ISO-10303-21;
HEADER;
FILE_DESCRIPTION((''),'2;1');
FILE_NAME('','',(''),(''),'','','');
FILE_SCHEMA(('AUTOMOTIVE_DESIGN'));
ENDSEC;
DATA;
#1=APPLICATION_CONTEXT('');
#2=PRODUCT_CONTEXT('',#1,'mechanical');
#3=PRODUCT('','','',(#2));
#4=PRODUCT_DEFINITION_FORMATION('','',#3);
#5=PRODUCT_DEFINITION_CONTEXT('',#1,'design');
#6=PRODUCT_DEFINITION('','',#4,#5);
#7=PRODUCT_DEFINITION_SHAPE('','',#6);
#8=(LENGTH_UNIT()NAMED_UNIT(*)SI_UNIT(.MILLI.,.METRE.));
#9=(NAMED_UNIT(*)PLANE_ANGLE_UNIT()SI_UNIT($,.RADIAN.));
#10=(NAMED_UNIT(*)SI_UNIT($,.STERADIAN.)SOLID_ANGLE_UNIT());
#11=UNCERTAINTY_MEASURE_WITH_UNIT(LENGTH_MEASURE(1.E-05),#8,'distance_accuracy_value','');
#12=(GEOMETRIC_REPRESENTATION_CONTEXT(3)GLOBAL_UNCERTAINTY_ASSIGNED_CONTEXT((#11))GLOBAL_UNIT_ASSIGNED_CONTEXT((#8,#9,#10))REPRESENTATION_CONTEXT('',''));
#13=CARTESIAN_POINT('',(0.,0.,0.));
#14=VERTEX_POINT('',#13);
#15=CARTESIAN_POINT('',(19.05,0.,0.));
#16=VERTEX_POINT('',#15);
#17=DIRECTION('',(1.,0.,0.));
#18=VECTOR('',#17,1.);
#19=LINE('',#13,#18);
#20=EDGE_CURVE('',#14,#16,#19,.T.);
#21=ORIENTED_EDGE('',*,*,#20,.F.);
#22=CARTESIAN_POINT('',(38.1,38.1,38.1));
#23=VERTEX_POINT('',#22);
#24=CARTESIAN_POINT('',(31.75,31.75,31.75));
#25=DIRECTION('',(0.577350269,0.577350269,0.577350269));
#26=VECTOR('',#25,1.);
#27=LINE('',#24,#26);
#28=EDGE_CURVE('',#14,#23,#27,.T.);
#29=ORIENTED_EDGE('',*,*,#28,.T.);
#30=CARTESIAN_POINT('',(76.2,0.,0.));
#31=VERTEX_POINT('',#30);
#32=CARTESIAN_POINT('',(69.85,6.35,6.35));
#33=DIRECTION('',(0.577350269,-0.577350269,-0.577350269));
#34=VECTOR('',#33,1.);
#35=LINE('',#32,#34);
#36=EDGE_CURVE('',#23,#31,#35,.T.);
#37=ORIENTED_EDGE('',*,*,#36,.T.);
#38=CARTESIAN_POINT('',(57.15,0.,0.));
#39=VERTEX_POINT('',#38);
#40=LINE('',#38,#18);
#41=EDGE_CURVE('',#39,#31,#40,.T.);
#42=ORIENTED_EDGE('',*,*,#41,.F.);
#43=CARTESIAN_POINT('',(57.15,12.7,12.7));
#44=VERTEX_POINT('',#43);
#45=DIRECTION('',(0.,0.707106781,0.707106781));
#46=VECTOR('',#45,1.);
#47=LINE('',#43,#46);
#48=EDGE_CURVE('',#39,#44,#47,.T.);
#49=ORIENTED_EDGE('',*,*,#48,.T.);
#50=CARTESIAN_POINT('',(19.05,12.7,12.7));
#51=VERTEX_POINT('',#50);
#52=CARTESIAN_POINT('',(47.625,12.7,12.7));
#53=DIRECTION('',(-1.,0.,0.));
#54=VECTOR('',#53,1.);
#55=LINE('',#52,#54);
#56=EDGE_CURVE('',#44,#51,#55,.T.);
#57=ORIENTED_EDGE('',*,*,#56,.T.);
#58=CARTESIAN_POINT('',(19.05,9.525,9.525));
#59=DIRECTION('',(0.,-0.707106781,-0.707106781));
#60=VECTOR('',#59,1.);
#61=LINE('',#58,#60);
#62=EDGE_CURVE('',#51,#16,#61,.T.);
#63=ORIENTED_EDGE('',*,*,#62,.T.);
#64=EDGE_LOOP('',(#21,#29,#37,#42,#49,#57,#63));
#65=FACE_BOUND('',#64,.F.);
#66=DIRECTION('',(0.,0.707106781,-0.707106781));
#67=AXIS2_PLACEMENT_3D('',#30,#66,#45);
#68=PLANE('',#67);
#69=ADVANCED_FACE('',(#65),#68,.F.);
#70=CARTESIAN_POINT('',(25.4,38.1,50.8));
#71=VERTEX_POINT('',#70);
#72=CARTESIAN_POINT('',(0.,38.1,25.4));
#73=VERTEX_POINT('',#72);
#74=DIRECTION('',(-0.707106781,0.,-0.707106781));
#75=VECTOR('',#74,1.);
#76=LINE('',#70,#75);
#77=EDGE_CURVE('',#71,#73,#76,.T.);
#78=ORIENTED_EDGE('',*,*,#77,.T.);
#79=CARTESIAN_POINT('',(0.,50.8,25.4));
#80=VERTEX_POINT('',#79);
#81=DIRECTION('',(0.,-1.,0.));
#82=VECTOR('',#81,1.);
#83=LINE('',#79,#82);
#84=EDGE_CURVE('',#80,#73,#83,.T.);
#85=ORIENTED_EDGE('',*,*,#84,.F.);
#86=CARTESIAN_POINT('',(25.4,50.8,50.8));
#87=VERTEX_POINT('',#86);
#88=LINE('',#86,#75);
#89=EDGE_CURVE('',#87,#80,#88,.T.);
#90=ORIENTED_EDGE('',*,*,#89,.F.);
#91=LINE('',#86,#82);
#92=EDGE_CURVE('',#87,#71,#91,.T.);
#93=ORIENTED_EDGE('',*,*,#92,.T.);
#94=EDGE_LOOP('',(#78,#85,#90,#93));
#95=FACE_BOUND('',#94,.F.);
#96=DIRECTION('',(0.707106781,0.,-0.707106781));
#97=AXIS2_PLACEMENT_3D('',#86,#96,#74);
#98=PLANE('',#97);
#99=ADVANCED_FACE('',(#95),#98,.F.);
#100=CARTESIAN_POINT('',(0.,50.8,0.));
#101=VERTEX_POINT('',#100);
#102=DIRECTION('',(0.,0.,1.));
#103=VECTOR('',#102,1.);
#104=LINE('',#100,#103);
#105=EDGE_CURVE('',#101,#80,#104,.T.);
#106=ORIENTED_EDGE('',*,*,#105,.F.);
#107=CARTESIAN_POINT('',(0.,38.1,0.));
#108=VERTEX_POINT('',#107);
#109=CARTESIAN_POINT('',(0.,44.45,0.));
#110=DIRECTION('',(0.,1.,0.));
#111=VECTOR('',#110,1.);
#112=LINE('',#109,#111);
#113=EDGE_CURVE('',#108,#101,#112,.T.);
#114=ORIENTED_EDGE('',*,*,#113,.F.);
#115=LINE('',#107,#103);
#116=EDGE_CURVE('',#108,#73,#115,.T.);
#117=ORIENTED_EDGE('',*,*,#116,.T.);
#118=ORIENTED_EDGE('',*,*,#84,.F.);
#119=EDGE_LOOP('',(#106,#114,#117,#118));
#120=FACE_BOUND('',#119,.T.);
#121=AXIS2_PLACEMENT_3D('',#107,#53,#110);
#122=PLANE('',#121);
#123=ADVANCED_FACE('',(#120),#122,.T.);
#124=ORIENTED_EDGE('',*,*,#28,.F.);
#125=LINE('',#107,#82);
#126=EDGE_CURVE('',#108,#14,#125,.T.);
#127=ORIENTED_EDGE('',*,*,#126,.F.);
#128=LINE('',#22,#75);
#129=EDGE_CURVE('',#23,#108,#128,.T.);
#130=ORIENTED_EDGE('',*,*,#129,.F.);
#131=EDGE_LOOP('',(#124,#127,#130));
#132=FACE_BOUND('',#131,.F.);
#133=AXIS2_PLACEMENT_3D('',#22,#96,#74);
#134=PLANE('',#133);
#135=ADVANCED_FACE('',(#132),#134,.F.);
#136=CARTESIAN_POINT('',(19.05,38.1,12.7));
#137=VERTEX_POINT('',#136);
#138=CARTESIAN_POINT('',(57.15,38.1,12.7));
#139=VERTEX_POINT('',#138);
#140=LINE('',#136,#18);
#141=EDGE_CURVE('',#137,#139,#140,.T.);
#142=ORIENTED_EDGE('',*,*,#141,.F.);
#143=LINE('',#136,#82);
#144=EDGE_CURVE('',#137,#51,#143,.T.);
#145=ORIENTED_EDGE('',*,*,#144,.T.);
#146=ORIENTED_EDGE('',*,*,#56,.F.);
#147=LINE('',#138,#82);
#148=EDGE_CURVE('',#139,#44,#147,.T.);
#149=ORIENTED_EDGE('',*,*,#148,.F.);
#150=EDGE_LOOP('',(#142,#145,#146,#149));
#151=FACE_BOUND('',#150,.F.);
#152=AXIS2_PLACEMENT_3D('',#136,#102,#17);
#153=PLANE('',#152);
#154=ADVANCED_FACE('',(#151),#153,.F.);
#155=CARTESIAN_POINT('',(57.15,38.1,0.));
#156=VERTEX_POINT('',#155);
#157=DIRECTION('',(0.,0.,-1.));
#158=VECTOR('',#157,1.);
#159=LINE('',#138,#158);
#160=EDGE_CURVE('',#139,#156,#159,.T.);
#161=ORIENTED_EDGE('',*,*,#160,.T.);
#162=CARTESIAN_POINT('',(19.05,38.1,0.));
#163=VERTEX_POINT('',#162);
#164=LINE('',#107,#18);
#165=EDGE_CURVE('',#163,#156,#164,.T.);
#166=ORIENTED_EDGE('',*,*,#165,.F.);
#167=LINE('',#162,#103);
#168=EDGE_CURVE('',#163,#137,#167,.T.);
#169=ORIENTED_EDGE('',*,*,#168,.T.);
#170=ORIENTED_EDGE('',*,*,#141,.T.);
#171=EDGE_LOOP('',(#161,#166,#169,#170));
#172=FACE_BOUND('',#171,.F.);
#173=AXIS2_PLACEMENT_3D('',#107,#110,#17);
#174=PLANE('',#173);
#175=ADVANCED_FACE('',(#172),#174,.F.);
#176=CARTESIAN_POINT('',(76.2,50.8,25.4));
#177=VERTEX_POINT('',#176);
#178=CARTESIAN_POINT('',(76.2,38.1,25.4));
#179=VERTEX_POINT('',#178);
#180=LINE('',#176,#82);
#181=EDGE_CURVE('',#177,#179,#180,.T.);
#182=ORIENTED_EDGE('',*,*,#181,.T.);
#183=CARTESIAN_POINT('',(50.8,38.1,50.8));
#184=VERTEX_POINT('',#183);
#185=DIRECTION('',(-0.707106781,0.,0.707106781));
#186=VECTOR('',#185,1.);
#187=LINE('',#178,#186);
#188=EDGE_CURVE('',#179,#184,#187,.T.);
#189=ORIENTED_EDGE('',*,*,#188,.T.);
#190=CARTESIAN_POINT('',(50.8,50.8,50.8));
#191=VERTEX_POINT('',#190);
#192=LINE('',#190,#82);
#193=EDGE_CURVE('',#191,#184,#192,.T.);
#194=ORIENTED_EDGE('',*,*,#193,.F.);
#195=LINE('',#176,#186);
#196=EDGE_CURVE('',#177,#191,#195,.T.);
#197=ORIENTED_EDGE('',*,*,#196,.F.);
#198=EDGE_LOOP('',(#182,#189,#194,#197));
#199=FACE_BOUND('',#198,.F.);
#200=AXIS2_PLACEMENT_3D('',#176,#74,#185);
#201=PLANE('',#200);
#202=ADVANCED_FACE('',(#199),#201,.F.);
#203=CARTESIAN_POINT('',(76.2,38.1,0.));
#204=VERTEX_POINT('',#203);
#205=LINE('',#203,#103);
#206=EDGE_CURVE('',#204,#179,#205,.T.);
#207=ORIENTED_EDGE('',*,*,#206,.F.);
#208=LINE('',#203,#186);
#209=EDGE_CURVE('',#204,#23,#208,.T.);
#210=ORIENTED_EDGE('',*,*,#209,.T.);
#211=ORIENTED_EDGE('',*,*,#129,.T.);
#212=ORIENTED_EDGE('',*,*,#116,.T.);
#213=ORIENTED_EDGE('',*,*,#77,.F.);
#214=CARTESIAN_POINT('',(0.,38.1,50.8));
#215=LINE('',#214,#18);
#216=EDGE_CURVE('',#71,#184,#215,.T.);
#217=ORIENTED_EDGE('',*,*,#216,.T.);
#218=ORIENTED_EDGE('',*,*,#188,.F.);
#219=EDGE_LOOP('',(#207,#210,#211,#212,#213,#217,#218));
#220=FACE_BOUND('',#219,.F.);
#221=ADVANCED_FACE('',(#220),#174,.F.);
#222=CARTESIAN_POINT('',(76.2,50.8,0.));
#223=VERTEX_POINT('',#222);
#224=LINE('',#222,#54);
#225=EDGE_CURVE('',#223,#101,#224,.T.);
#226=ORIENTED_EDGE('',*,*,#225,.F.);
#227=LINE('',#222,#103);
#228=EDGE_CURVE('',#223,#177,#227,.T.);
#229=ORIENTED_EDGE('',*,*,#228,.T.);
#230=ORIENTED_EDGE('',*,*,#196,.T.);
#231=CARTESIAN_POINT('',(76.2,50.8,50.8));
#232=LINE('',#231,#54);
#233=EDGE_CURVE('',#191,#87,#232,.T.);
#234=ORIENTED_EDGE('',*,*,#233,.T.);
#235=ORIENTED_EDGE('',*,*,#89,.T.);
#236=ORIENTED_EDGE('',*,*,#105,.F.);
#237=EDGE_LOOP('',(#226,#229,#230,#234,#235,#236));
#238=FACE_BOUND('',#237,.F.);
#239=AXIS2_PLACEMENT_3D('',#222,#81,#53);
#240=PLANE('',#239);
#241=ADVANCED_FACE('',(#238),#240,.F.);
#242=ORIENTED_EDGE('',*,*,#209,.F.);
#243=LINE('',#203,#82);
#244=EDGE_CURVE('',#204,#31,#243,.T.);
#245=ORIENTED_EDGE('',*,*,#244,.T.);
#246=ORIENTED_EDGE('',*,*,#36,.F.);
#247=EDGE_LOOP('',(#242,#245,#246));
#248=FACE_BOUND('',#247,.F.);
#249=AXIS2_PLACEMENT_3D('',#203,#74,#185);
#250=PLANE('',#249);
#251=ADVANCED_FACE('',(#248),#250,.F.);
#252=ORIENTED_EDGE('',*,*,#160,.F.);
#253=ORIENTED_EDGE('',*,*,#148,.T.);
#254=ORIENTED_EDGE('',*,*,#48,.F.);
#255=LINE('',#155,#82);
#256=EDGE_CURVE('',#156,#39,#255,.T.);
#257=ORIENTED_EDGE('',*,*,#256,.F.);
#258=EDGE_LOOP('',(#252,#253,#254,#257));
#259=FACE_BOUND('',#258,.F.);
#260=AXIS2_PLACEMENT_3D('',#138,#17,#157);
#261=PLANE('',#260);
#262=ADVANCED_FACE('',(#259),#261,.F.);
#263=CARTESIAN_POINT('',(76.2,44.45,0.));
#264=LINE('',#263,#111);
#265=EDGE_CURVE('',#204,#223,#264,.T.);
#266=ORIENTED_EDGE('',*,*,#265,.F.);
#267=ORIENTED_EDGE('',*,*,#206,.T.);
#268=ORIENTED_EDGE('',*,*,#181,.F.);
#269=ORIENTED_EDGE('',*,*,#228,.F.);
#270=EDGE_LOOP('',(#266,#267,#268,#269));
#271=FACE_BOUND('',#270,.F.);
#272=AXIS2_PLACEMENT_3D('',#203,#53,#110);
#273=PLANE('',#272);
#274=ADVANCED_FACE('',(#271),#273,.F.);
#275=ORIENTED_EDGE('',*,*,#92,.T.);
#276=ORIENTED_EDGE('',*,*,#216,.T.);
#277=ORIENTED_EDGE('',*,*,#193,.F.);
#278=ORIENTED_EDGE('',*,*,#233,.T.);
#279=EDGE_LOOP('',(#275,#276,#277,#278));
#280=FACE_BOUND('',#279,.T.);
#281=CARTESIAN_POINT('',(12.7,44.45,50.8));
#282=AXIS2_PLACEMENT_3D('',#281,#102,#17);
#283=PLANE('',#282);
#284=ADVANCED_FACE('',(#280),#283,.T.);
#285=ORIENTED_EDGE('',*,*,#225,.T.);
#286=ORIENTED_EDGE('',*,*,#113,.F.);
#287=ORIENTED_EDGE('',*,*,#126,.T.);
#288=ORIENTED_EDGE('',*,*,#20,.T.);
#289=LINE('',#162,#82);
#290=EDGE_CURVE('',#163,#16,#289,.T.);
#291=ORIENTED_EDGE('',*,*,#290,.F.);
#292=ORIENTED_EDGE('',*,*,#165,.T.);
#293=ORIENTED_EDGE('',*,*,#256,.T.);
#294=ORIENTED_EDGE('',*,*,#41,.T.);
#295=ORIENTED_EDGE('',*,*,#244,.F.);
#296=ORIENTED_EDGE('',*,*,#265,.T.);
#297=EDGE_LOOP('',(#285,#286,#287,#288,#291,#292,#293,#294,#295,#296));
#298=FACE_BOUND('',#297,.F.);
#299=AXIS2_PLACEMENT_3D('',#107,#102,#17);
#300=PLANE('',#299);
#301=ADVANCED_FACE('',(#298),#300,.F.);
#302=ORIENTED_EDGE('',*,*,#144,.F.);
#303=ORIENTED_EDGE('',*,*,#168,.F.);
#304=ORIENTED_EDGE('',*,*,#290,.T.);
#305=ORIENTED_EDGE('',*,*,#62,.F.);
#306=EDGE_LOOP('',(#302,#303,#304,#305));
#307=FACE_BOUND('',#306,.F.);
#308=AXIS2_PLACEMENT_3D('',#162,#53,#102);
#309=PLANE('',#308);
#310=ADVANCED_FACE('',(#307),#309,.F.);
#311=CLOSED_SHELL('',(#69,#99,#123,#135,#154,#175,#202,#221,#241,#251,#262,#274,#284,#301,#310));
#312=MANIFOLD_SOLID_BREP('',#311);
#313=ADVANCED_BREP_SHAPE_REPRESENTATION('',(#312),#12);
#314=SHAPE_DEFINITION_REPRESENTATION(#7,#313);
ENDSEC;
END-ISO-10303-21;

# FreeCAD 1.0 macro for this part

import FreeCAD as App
import Part
import Sketcher

V = App.Vector
Q = App.Units.Quantity


def add_polygon(sketch, points):
    """Adds a closed chain of lines whose ends are joined by coincident constraints."""
    first, n = sketch.GeometryCount, len(points)
    for a, b in zip(points, points[1:] + points[:1]):
        sketch.addGeometry(Part.LineSegment(App.Vector(*a, 0), App.Vector(*b, 0)), False)
    for i in range(n):
        sketch.addConstraint(Sketcher.Constraint("Coincident", first + i, 2, first + (i + 1) % n, 1))

doc = App.newDocument("Part")
body = doc.addObject("PartDesign::Body", "Body")

# Sketch on XY plane
sketch1 = body.newObject("Sketcher::SketchObject", "Sketch")
sketch1.AttachmentSupport = (doc.getObject("XY_Plane"), [""])
sketch1.MapMode = "FlatFace"
add_polygon(sketch1, [(0, 50.8), (0, 38.1), (76.2, 38.1), (76.2, 50.8)])  # lines 0-3
sketch1.addConstraint([
    Sketcher.Constraint("Vertical", 0),
    Sketcher.Constraint("Horizontal", 1),
    Sketcher.Constraint("Vertical", 2),
    Sketcher.Constraint("Horizontal", 3),
    Sketcher.Constraint("PointOnObject", 0, 2, -2),
    Sketcher.Constraint("DistanceX", 1, 1, 1, 2, Q("3 in")),
    Sketcher.Constraint("DistanceY", 0, 2, 0, 1, Q("0.5 in")),
    Sketcher.Constraint("DistanceY", -1, 1, 2, 2, Q("2 in")),
])
pad1 = body.newObject("PartDesign::Pad", "Pad")
pad1.Profile = sketch1
pad1.Length = Q("2 in")

# Sketch on XZ plane
sketch2 = body.newObject("Sketcher::SketchObject", "Sketch001")
sketch2.AttachmentSupport = (doc.getObject("XZ_Plane"), [""])
sketch2.MapMode = "FlatFace"
sketch2.AttachmentOffset = App.Placement(V(0, 0, -2 * 25.4), App.Rotation())
add_polygon(sketch2, [(76.2, 25.4), (50.8, 50.8), (76.2, 50.8)])  # lines 0-2
add_polygon(sketch2, [(25.4, 50.8), (0, 25.4), (0, 50.8)])  # lines 3-5
sketch2.addConstraint([
    Sketcher.Constraint("Horizontal", 1),
    Sketcher.Constraint("Vertical", 2),
    Sketcher.Constraint("Vertical", 4),
    Sketcher.Constraint("Horizontal", 5),
    Sketcher.Constraint("PointOnObject", 3, 2, -2),
    Sketcher.Constraint("Perpendicular", 0, 3),
    Sketcher.Constraint("Horizontal", 2, 2, 3, 2),
    Sketcher.Constraint("Horizontal", 1, 2, 4, 2),
    Sketcher.Constraint("Equal", 1, 5),
    Sketcher.Constraint("DistanceX", 1, 1, 1, 2, Q("1 in")),
    Sketcher.Constraint("DistanceX", -1, 1, 0, 2, Q("2 in")),
    Sketcher.Constraint("DistanceY", -1, 1, 0, 2, Q("2 in")),
])
pocket1 = body.newObject("PartDesign::Pocket", "Pocket")
pocket1.Profile = sketch2
pocket1.Length = Q("0.5 in")
pocket1.Reversed = True

# Sketch on XZ plane
sketch3 = body.newObject("Sketcher::SketchObject", "Sketch002")
sketch3.AttachmentSupport = (doc.getObject("XZ_Plane"), [""])
sketch3.MapMode = "FlatFace"
sketch3.AttachmentOffset = App.Placement(V(0, 0, -1.5 * 25.4), App.Rotation())
add_polygon(sketch3, [(38.1, 38.1), (0, 0), (19.05, 0), (19.05, 12.7), (57.15, 12.7), (57.15, 0), (76.2, 0)])  # lines 0-6
sketch3.addConstraint([
    Sketcher.Constraint("Horizontal", 1),
    Sketcher.Constraint("Vertical", 2),
    Sketcher.Constraint("Horizontal", 3),
    Sketcher.Constraint("Vertical", 4),
    Sketcher.Constraint("Horizontal", 5),
    Sketcher.Constraint("Coincident", 0, 2, -1, 1),
    Sketcher.Constraint("PointOnObject", 4, 2, -1),
    Sketcher.Constraint("Perpendicular", 0, 6),
    Sketcher.Constraint("Equal", 1, 5),
    Sketcher.Constraint("Equal", 0, 6),
    Sketcher.Constraint("DistanceX", 3, 1, 3, 2, Q("1.5 in")),
    Sketcher.Constraint("DistanceY", 2, 1, 2, 2, Q("0.5 in")),
    Sketcher.Constraint("DistanceX", -1, 1, 5, 2, Q("3 in")),
])
pad2 = body.newObject("PartDesign::Pad", "Pad001")
pad2.Profile = sketch3
pad2.Length = Q("1.5 in")

# Sketch on YZ plane
sketch4 = body.newObject("Sketcher::SketchObject", "Sketch003")
sketch4.AttachmentSupport = (doc.getObject("YZ_Plane"), [""])
sketch4.MapMode = "FlatFace"
sketch4.AttachmentOffset = App.Placement(V(0, 0, 3 * 25.4), App.Rotation())
add_polygon(sketch4, [(38.1, 38.1), (0, 38.1), (0, 0)])  # lines 0-2
sketch4.addConstraint([
    Sketcher.Constraint("Horizontal", 0),
    Sketcher.Constraint("Vertical", 1),
    Sketcher.Constraint("Coincident", 1, 2, -1, 1),
    Sketcher.Constraint("Equal", 0, 1),
    Sketcher.Constraint("DistanceX", 0, 2, 0, 1, Q("1.5 in")),
])
pocket2 = body.newObject("PartDesign::Pocket", "Pocket001")
pocket2.Profile = sketch4
pocket2.Type = "ThroughAll"

doc.recompute()
